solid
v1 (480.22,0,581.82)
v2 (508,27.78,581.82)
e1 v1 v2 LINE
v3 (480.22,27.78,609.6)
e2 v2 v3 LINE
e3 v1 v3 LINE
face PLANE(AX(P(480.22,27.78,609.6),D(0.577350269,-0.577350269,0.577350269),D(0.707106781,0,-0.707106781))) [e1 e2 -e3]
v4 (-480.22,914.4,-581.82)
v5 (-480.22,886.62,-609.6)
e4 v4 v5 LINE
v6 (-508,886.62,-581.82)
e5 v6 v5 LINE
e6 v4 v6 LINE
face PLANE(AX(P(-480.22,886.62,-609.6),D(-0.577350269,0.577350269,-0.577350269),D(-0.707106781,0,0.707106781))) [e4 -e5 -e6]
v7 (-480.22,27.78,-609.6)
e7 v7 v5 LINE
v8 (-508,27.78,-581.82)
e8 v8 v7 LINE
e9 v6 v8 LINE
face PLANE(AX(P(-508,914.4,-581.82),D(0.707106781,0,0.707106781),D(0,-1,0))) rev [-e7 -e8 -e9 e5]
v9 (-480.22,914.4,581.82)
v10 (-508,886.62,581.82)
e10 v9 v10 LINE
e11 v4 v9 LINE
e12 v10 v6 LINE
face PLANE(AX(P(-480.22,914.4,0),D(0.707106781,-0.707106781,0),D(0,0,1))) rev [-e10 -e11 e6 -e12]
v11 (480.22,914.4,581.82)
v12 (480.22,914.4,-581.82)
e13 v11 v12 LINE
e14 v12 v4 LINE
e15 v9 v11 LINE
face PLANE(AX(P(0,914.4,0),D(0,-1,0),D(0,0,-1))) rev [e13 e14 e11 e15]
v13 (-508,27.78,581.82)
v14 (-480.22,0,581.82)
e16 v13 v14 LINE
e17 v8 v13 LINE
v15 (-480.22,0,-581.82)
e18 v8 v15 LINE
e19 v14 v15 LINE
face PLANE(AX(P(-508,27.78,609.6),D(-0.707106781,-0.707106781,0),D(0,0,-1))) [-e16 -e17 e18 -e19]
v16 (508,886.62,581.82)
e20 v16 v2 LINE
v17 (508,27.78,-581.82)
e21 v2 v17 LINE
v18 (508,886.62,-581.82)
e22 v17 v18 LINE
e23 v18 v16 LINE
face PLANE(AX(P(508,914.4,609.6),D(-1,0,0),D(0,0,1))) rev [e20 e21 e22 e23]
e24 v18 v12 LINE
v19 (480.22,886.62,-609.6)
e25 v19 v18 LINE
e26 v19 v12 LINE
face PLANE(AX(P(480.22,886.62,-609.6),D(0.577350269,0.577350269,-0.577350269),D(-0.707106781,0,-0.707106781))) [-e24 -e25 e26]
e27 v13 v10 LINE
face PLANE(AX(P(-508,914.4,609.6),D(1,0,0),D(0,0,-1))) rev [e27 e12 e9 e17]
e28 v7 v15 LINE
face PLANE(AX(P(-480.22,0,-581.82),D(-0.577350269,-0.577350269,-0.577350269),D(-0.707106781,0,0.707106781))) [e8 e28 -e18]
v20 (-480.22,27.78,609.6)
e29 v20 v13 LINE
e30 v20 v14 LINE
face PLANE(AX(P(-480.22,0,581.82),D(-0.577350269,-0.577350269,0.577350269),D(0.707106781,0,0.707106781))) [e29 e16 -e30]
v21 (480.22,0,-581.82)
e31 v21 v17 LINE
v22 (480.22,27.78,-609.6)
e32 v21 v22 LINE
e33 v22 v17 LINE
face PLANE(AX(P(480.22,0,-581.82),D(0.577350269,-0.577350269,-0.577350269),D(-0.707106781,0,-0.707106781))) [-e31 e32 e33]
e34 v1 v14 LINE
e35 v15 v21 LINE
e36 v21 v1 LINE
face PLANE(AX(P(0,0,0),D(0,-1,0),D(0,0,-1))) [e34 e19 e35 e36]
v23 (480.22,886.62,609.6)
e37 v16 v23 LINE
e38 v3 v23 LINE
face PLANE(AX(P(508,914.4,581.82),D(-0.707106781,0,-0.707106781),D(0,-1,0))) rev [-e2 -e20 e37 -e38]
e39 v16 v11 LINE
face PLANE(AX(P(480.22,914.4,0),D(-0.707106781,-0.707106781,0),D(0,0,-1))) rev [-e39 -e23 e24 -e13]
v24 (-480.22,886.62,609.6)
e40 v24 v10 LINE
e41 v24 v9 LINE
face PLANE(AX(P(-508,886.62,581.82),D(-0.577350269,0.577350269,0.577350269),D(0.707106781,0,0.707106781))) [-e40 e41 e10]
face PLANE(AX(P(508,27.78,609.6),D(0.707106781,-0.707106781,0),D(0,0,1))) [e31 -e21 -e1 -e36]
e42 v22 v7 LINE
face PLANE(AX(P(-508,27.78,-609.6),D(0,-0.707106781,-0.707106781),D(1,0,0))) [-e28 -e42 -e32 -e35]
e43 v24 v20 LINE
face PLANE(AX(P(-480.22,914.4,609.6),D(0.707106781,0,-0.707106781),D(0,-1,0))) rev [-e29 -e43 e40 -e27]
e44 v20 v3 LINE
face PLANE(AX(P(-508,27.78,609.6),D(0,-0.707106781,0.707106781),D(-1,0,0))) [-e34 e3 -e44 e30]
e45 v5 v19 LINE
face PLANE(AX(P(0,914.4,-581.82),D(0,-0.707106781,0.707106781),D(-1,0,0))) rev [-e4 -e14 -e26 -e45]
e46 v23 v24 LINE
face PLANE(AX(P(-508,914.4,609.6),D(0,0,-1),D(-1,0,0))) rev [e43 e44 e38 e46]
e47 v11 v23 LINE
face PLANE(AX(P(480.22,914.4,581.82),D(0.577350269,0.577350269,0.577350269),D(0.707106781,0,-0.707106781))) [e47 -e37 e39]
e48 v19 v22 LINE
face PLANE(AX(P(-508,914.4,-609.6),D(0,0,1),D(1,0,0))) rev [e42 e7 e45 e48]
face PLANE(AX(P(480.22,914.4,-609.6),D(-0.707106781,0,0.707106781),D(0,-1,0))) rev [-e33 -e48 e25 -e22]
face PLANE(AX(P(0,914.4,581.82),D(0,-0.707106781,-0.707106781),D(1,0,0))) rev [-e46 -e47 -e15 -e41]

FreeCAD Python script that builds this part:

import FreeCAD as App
import Part
import Sketcher
Q = App.Units.Quantity

doc = App.newDocument("Part")
body = doc.addObject("PartDesign::Body", "Body")

# Sketch on XZ plane
sketch1 = body.newObject("Sketcher::SketchObject", "Sketch")
sketch1.AttachmentSupport = (doc.getObject("XZ_Plane"), [""])
sketch1.MapMode = "FlatFace"
sketch1.addGeometry([
    Part.LineSegment(App.Vector(-508, -610, 0), App.Vector(-508, 610, 0)),
    Part.LineSegment(App.Vector(-508, 610, 0), App.Vector(508, 610, 0)),
    Part.LineSegment(App.Vector(508, 610, 0), App.Vector(508, -610, 0)),
    Part.LineSegment(App.Vector(508, -610, 0), App.Vector(-508, -610, 0)),
], False)
sketch1.addConstraint([
    Sketcher.Constraint("Coincident", 0, 2, 1, 1),
    Sketcher.Constraint("Coincident", 1, 2, 2, 1),
    Sketcher.Constraint("Coincident", 2, 2, 3, 1),
    Sketcher.Constraint("Coincident", 3, 2, 0, 1),
    Sketcher.Constraint("Vertical", 0),
    Sketcher.Constraint("Horizontal", 1),
    Sketcher.Constraint("Vertical", 2),
    Sketcher.Constraint("Horizontal", 3),
    Sketcher.Constraint("Symmetric", 0, 2, 2, 2, -1, 1),
    Sketcher.Constraint("DistanceX", 1, 1, 1, 2, Q("40 in")),
    Sketcher.Constraint("DistanceY", 0, 1, 0, 2, Q("48 in")),
])
pad1 = body.newObject("PartDesign::Pad", "Pad")
pad1.Profile = sketch1
pad1.Length = Q("36 in")
pad1.Reversed = True
doc.recompute()

chamfer = body.newObject("PartDesign::Chamfer", "Chamfer")
chamfer.Base = (pad1, ["Edge1"])
chamfer.UseAllEdges = True
chamfer.Size = 27.78

doc.recompute()
